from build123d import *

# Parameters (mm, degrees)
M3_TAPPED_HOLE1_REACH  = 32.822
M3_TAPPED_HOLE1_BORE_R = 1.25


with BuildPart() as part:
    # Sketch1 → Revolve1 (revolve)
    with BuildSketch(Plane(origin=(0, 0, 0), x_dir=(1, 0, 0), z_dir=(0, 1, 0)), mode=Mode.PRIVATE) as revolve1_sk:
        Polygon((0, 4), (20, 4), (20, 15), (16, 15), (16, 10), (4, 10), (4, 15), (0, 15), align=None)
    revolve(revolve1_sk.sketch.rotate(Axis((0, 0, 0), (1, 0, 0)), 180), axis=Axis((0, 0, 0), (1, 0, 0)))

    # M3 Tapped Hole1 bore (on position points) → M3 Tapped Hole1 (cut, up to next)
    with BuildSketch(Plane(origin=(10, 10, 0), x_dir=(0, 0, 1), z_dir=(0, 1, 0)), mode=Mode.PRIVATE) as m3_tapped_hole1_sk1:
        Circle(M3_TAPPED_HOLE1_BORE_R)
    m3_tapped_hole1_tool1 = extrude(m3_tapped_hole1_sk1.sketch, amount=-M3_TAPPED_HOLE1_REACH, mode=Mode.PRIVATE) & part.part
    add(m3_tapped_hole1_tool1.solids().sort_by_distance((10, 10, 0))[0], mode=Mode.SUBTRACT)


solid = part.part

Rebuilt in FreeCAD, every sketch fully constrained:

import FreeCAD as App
import Part
import Sketcher

doc = App.newDocument("Part")
body = doc.addObject("PartDesign::Body", "Body")

# Sketch on XZ plane
sketch1 = doc.addObject("Sketcher::SketchObject", "Sketch")
body.addObject(sketch1)
sketch1.AttachmentSupport = (doc.XZ_Plane, [""])
sketch1.MapMode = "FlatFace"
sketch1.addGeometry([
    Part.LineSegment(App.Vector(0, -4, 0), App.Vector(20, -4, 0)),  # 0
    Part.LineSegment(App.Vector(20, -4, 0), App.Vector(20, -15, 0)),  # 1
    Part.LineSegment(App.Vector(20, -15, 0), App.Vector(16, -15, 0)),  # 2
    Part.LineSegment(App.Vector(16, -15, 0), App.Vector(16, -10, 0)),  # 3
    Part.LineSegment(App.Vector(16, -10, 0), App.Vector(4, -10, 0)),  # 4
    Part.LineSegment(App.Vector(4, -10, 0), App.Vector(4, -15, 0)),  # 5
    Part.LineSegment(App.Vector(4, -15, 0), App.Vector(0, -15, 0)),  # 6
    Part.LineSegment(App.Vector(0, -15, 0), App.Vector(0, -4, 0)),  # 7
], False)
sketch1.addConstraint([
    Sketcher.Constraint("Coincident", 0, 2, 1, 1),
    Sketcher.Constraint("Coincident", 1, 2, 2, 1),
    Sketcher.Constraint("Coincident", 2, 2, 3, 1),
    Sketcher.Constraint("Coincident", 3, 2, 4, 1),
    Sketcher.Constraint("Coincident", 4, 2, 5, 1),
    Sketcher.Constraint("Coincident", 5, 2, 6, 1),
    Sketcher.Constraint("Coincident", 6, 2, 7, 1),
    Sketcher.Constraint("Coincident", 7, 2, 0, 1),
    Sketcher.Constraint("Horizontal", 0),
    Sketcher.Constraint("Vertical", 1),
    Sketcher.Constraint("Horizontal", 2),
    Sketcher.Constraint("Vertical", 3),
    Sketcher.Constraint("Horizontal", 4),
    Sketcher.Constraint("Vertical", 5),
    Sketcher.Constraint("Horizontal", 6),
    Sketcher.Constraint("Vertical", 7),
    Sketcher.Constraint("PointOnObject", 6, 2, -2),
    Sketcher.Constraint("Horizontal", 2, 2, 5, 2),
    Sketcher.Constraint("Equal", 2, 6),
    Sketcher.Constraint("DistanceX", 0, 1, 0, 2, 20.0),
    Sketcher.Constraint("DistanceX", 2, 2, 2, 1, 4.0),
    Sketcher.Constraint("DistanceY", 1, 2, 1, 1, 11.0),
    Sketcher.Constraint("DistanceY", 3, 1, 3, 2, 5.0),
    Sketcher.Constraint("DistanceY", 0, 2, -1, 1, 4.0),
])
revolution = doc.addObject("PartDesign::Revolution", "Revolution")
body.addObject(revolution)
revolution.Profile = sketch1
revolution.ReferenceAxis = (sketch1, ["H_Axis"])
revolution.Angle = 360

# Sketch on XZ plane
sketch2 = doc.addObject("Sketcher::SketchObject", "Sketch001")
body.addObject(sketch2)
sketch2.AttachmentSupport = (doc.XZ_Plane, [""])
sketch2.MapMode = "FlatFace"
sketch2.AttachmentOffset = App.Placement(App.Vector(0, 0, -10), App.Rotation())
sketch2.addGeometry(Part.Circle(App.Vector(10, 0, 0), App.Vector(0, 0, 1), 1.2), False)
sketch2.addConstraint([
    Sketcher.Constraint("PointOnObject", 0, 3, -1),
    Sketcher.Constraint("Diameter", 0, 2.5),
    Sketcher.Constraint("DistanceX", -1, 1, 0, 3, 10.0),
])
pocket1 = doc.addObject("PartDesign::Pocket", "Pocket")
body.addObject(pocket1)
pocket1.Profile = sketch2
pocket1.Type = "UpToFirst"
pocket1.Reversed = True

doc.recompute()
